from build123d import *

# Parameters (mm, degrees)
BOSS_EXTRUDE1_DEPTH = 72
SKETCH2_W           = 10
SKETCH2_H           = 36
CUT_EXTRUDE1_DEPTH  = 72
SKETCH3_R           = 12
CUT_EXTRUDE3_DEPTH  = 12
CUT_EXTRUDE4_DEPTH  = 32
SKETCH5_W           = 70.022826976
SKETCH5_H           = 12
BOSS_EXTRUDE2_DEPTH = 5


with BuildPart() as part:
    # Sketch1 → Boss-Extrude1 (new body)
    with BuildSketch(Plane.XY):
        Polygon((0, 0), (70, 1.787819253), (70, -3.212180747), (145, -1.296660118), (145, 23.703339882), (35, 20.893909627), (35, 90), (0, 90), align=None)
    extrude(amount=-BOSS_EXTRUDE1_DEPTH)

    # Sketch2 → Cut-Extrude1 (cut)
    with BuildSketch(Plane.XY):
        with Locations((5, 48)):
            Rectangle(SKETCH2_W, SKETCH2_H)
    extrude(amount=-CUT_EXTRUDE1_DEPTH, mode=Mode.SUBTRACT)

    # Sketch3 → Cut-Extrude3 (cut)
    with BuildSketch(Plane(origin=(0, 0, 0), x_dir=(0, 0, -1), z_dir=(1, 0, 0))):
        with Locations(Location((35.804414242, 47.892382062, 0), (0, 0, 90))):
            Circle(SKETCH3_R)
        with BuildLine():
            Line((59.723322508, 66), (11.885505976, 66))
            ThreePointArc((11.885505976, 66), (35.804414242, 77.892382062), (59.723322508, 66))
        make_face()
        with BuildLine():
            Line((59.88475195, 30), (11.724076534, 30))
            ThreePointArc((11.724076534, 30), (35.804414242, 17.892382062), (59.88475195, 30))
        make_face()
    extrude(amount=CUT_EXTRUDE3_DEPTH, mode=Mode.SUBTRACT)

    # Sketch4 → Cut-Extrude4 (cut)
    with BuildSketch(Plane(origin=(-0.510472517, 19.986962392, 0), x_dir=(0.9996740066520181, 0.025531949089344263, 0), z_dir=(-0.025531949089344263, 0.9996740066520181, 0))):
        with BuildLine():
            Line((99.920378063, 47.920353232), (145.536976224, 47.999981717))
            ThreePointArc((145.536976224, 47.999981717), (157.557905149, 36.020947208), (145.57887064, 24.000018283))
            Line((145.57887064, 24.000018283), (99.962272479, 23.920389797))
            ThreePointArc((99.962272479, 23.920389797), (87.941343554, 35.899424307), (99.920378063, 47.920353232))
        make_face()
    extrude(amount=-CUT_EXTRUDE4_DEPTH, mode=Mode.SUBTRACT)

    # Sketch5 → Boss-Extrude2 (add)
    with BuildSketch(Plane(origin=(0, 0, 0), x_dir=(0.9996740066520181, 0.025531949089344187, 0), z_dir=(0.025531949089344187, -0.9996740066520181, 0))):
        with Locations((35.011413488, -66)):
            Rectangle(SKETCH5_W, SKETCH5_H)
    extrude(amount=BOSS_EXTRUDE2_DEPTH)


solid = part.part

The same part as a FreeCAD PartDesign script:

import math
import FreeCAD as App
import Part
import Sketcher
from FreeCAD import Vector
Q = App.Units.Quantity


def add_polygon(sketch, points):
    """Adds a closed chain of lines whose ends are joined by coincident constraints."""
    first, n = sketch.GeometryCount, len(points)
    for a, b in zip(points, points[1:] + points[:1]):
        sketch.addGeometry(Part.LineSegment(App.Vector(*a, 0), App.Vector(*b, 0)), False)
    for i in range(n):
        sketch.addConstraint(Sketcher.Constraint("Coincident", first + i, 2, first + (i + 1) % n, 1))

doc = App.newDocument("Part")
body = doc.addObject("PartDesign::Body", "Body")

# Sketch on XY plane
sketch1 = body.newObject("Sketcher::SketchObject", "Sketch")
sketch1.AttachmentSupport = (doc.getObject("XY_Plane"), [""])
sketch1.MapMode = "FlatFace"
add_polygon(sketch1, [(0, 0), (70, 2), (70, -3), (145, -1), (145, 24), (35, 21), (35, 90), (0, 90)])  # lines 0-7
sketch1.addConstraint([
    Sketcher.Constraint("Vertical", 1),
    Sketcher.Constraint("Vertical", 3),
    Sketcher.Constraint("Vertical", 5),
    Sketcher.Constraint("Horizontal", 6),
    Sketcher.Constraint("Vertical", 7),
    Sketcher.Constraint("Coincident", 7, 2, -1, 1),
    Sketcher.Constraint("Parallel", 0, 2),
    Sketcher.Constraint("Parallel", 2, 4),
    Sketcher.Constraint("DistanceX", 6, 2, 6, 1, 35.0),
    Sketcher.Constraint("DistanceY", 1, 2, 1, 1, 5.0),
    Sketcher.Constraint("DistanceY", 3, 1, 3, 2, 25.0),
    Sketcher.Constraint("DistanceY", 7, 2, 7, 1, 90.0),
    Sketcher.Constraint("DistanceX", -1, 1, 0, 2, 70.0),
    Sketcher.Constraint("DistanceX", -1, 1, 2, 2, 145.0),
    Sketcher.Constraint("DistanceY", 5, 1, 5, 2, 69.10609),
])
pad1 = body.newObject("PartDesign::Pad", "Pad")
pad1.Profile = sketch1
pad1.Length = 72
pad1.Reversed = True

# Sketch on XY plane
sketch2 = body.newObject("Sketcher::SketchObject", "Sketch001")
sketch2.AttachmentSupport = (doc.getObject("XY_Plane"), [""])
sketch2.MapMode = "FlatFace"
add_polygon(sketch2, [(0, 66), (0, 30), (10, 30), (10, 66)])  # lines 0-3
sketch2.addConstraint([
    Sketcher.Constraint("Vertical", 0),
    Sketcher.Constraint("Horizontal", 1),
    Sketcher.Constraint("Vertical", 2),
    Sketcher.Constraint("Horizontal", 3),
    Sketcher.Constraint("PointOnObject", 0, 2, -2),
    Sketcher.Constraint("DistanceX", 1, 1, 1, 2, 10.0),
    Sketcher.Constraint("DistanceY", 0, 2, 0, 1, 36.0),
    Sketcher.Constraint("DistanceY", -1, 1, 0, 2, 30.0),
])
pocket1 = body.newObject("PartDesign::Pocket", "Pocket")
pocket1.Profile = sketch2
pocket1.Length = 72

# Sketch on YZ plane
sketch3 = body.newObject("Sketcher::SketchObject", "Sketch002")
sketch3.AttachmentSupport = (doc.getObject("YZ_Plane"), [""])
sketch3.MapMode = "FlatFace"
sketch3.addGeometry([
    Part.Circle(Vector(48, -36, 0), Vector(0, 0, 1), 12),  # 0
    Part.LineSegment(Vector(66, -12, 0), Vector(66, -60, 0)),  # 1
    Part.ArcOfCircle(Part.Circle(Vector(48, -36, 0), Vector(0, 0, 1), 30), math.radians(-53), math.radians(53)),  # 2
    Part.LineSegment(Vector(30, -60, 0), Vector(30, -12, 0)),  # 3
    Part.ArcOfCircle(Part.Circle(Vector(48, -36, 0), Vector(0, 0, 1), 30), math.radians(127), math.radians(233)),  # 4
], False)
sketch3.addConstraint([
    Sketcher.Constraint("Coincident", 1, 1, 2, 2),
    Sketcher.Constraint("Coincident", 2, 1, 1, 2),
    Sketcher.Constraint("Coincident", 3, 1, 4, 2),
    Sketcher.Constraint("Coincident", 4, 1, 3, 2),
    Sketcher.Constraint("Vertical", 1),
    Sketcher.Constraint("Vertical", 3),
    Sketcher.Constraint("Coincident", 2, 3, 0, 3),
    Sketcher.Constraint("Coincident", 4, 3, 0, 3),
    Sketcher.Constraint("Equal", 2, 4),
    Sketcher.Constraint("Diameter", 0, 24.0),
    Sketcher.Constraint("Radius", 2, 30.0),
    Sketcher.Constraint("DistanceX", -1, 1, 1, 1, 66.0),
    Sketcher.Constraint("DistanceX", -1, 1, 3, 1, 30.0),
    Sketcher.Constraint("DistanceY", 1, 2, 1, 1, 47.837817),
    Sketcher.Constraint("DistanceY", 3, 1, -1, 1, 59.884752),
])
pocket2 = body.newObject("PartDesign::Pocket", "Pocket001")
pocket2.Profile = sketch3
pocket2.Length = 12
pocket2.Reversed = True

# Sketch on an angled plane
sketch4 = body.newObject("Sketcher::SketchObject", "Sketch003")
sketch4.Placement = App.Placement(Vector(-0.510473, 19.986962, 0), App.Rotation(Vector(0.999674007, 0.025531949, 0), Vector(0, 0, -1.000000001), Vector(-0.025531949, 0.999674007, 0), "ZXY"))
sketch4.addGeometry([
    Part.LineSegment(Vector(146, 48, 0), Vector(100, 48, 0)),
    Part.ArcOfCircle(Part.Circle(Vector(100, 36, 0), Vector(0, 0, 1), 12), math.radians(90), math.radians(270)),
    Part.LineSegment(Vector(100, 24, 0), Vector(146, 24, 0)),
    Part.ArcOfCircle(Part.Circle(Vector(146, 36, 0), Vector(0, 0, 1), 12), math.radians(-90), math.radians(90)),
], False)
sketch4.addConstraint([
    Sketcher.Constraint("Tangent", 0, 2, 1, 1),
    Sketcher.Constraint("Tangent", 1, 2, 2, 1),
    Sketcher.Constraint("Tangent", 2, 2, 3, 1),
    Sketcher.Constraint("Tangent", 3, 2, 0, 1),
    Sketcher.Constraint("Equal", 1, 3),
    Sketcher.Constraint("Radius", 1, 12.0),
    Sketcher.Constraint("DistanceY", -1, 1, 3, 3, 36.0),
    Sketcher.Constraint("Angle", 0, Q("-179.899984 deg")),
    Sketcher.Constraint("DistanceX", 1, 3, 3, 3, 45.616598),
    Sketcher.Constraint("DistanceX", -1, 1, 0, 2, 99.920378),
])
pocket3 = body.newObject("PartDesign::Pocket", "Pocket002")
pocket3.Profile = sketch4
pocket3.Length = 32

# Sketch on an angled plane
sketch5 = body.newObject("Sketcher::SketchObject", "Sketch004")
sketch5.Placement = App.Placement(Vector(0, 0, 0), App.Rotation(Vector(0.999674007, 0.025531949, 0), Vector(0, 0, 1.000000001), Vector(0.025531949, -0.999674007, 0), "ZXY"))
add_polygon(sketch5, [(0, -60), (0, -72), (70, -72), (70, -60)])  # lines 0-3
sketch5.addConstraint([
    Sketcher.Constraint("Vertical", 0),
    Sketcher.Constraint("Horizontal", 1),
    Sketcher.Constraint("Vertical", 2),
    Sketcher.Constraint("Horizontal", 3),
    Sketcher.Constraint("PointOnObject", 0, 2, -2),
    Sketcher.Constraint("DistanceY", 0, 2, 0, 1, 12.0),
    Sketcher.Constraint("DistanceY", 0, 2, -1, 1, 72.0),
    Sketcher.Constraint("DistanceX", 1, 1, 1, 2, 70.022827),
])
pad2 = body.newObject("PartDesign::Pad", "Pad001")
pad2.Profile = sketch5
pad2.Length = 5

doc.recompute()
